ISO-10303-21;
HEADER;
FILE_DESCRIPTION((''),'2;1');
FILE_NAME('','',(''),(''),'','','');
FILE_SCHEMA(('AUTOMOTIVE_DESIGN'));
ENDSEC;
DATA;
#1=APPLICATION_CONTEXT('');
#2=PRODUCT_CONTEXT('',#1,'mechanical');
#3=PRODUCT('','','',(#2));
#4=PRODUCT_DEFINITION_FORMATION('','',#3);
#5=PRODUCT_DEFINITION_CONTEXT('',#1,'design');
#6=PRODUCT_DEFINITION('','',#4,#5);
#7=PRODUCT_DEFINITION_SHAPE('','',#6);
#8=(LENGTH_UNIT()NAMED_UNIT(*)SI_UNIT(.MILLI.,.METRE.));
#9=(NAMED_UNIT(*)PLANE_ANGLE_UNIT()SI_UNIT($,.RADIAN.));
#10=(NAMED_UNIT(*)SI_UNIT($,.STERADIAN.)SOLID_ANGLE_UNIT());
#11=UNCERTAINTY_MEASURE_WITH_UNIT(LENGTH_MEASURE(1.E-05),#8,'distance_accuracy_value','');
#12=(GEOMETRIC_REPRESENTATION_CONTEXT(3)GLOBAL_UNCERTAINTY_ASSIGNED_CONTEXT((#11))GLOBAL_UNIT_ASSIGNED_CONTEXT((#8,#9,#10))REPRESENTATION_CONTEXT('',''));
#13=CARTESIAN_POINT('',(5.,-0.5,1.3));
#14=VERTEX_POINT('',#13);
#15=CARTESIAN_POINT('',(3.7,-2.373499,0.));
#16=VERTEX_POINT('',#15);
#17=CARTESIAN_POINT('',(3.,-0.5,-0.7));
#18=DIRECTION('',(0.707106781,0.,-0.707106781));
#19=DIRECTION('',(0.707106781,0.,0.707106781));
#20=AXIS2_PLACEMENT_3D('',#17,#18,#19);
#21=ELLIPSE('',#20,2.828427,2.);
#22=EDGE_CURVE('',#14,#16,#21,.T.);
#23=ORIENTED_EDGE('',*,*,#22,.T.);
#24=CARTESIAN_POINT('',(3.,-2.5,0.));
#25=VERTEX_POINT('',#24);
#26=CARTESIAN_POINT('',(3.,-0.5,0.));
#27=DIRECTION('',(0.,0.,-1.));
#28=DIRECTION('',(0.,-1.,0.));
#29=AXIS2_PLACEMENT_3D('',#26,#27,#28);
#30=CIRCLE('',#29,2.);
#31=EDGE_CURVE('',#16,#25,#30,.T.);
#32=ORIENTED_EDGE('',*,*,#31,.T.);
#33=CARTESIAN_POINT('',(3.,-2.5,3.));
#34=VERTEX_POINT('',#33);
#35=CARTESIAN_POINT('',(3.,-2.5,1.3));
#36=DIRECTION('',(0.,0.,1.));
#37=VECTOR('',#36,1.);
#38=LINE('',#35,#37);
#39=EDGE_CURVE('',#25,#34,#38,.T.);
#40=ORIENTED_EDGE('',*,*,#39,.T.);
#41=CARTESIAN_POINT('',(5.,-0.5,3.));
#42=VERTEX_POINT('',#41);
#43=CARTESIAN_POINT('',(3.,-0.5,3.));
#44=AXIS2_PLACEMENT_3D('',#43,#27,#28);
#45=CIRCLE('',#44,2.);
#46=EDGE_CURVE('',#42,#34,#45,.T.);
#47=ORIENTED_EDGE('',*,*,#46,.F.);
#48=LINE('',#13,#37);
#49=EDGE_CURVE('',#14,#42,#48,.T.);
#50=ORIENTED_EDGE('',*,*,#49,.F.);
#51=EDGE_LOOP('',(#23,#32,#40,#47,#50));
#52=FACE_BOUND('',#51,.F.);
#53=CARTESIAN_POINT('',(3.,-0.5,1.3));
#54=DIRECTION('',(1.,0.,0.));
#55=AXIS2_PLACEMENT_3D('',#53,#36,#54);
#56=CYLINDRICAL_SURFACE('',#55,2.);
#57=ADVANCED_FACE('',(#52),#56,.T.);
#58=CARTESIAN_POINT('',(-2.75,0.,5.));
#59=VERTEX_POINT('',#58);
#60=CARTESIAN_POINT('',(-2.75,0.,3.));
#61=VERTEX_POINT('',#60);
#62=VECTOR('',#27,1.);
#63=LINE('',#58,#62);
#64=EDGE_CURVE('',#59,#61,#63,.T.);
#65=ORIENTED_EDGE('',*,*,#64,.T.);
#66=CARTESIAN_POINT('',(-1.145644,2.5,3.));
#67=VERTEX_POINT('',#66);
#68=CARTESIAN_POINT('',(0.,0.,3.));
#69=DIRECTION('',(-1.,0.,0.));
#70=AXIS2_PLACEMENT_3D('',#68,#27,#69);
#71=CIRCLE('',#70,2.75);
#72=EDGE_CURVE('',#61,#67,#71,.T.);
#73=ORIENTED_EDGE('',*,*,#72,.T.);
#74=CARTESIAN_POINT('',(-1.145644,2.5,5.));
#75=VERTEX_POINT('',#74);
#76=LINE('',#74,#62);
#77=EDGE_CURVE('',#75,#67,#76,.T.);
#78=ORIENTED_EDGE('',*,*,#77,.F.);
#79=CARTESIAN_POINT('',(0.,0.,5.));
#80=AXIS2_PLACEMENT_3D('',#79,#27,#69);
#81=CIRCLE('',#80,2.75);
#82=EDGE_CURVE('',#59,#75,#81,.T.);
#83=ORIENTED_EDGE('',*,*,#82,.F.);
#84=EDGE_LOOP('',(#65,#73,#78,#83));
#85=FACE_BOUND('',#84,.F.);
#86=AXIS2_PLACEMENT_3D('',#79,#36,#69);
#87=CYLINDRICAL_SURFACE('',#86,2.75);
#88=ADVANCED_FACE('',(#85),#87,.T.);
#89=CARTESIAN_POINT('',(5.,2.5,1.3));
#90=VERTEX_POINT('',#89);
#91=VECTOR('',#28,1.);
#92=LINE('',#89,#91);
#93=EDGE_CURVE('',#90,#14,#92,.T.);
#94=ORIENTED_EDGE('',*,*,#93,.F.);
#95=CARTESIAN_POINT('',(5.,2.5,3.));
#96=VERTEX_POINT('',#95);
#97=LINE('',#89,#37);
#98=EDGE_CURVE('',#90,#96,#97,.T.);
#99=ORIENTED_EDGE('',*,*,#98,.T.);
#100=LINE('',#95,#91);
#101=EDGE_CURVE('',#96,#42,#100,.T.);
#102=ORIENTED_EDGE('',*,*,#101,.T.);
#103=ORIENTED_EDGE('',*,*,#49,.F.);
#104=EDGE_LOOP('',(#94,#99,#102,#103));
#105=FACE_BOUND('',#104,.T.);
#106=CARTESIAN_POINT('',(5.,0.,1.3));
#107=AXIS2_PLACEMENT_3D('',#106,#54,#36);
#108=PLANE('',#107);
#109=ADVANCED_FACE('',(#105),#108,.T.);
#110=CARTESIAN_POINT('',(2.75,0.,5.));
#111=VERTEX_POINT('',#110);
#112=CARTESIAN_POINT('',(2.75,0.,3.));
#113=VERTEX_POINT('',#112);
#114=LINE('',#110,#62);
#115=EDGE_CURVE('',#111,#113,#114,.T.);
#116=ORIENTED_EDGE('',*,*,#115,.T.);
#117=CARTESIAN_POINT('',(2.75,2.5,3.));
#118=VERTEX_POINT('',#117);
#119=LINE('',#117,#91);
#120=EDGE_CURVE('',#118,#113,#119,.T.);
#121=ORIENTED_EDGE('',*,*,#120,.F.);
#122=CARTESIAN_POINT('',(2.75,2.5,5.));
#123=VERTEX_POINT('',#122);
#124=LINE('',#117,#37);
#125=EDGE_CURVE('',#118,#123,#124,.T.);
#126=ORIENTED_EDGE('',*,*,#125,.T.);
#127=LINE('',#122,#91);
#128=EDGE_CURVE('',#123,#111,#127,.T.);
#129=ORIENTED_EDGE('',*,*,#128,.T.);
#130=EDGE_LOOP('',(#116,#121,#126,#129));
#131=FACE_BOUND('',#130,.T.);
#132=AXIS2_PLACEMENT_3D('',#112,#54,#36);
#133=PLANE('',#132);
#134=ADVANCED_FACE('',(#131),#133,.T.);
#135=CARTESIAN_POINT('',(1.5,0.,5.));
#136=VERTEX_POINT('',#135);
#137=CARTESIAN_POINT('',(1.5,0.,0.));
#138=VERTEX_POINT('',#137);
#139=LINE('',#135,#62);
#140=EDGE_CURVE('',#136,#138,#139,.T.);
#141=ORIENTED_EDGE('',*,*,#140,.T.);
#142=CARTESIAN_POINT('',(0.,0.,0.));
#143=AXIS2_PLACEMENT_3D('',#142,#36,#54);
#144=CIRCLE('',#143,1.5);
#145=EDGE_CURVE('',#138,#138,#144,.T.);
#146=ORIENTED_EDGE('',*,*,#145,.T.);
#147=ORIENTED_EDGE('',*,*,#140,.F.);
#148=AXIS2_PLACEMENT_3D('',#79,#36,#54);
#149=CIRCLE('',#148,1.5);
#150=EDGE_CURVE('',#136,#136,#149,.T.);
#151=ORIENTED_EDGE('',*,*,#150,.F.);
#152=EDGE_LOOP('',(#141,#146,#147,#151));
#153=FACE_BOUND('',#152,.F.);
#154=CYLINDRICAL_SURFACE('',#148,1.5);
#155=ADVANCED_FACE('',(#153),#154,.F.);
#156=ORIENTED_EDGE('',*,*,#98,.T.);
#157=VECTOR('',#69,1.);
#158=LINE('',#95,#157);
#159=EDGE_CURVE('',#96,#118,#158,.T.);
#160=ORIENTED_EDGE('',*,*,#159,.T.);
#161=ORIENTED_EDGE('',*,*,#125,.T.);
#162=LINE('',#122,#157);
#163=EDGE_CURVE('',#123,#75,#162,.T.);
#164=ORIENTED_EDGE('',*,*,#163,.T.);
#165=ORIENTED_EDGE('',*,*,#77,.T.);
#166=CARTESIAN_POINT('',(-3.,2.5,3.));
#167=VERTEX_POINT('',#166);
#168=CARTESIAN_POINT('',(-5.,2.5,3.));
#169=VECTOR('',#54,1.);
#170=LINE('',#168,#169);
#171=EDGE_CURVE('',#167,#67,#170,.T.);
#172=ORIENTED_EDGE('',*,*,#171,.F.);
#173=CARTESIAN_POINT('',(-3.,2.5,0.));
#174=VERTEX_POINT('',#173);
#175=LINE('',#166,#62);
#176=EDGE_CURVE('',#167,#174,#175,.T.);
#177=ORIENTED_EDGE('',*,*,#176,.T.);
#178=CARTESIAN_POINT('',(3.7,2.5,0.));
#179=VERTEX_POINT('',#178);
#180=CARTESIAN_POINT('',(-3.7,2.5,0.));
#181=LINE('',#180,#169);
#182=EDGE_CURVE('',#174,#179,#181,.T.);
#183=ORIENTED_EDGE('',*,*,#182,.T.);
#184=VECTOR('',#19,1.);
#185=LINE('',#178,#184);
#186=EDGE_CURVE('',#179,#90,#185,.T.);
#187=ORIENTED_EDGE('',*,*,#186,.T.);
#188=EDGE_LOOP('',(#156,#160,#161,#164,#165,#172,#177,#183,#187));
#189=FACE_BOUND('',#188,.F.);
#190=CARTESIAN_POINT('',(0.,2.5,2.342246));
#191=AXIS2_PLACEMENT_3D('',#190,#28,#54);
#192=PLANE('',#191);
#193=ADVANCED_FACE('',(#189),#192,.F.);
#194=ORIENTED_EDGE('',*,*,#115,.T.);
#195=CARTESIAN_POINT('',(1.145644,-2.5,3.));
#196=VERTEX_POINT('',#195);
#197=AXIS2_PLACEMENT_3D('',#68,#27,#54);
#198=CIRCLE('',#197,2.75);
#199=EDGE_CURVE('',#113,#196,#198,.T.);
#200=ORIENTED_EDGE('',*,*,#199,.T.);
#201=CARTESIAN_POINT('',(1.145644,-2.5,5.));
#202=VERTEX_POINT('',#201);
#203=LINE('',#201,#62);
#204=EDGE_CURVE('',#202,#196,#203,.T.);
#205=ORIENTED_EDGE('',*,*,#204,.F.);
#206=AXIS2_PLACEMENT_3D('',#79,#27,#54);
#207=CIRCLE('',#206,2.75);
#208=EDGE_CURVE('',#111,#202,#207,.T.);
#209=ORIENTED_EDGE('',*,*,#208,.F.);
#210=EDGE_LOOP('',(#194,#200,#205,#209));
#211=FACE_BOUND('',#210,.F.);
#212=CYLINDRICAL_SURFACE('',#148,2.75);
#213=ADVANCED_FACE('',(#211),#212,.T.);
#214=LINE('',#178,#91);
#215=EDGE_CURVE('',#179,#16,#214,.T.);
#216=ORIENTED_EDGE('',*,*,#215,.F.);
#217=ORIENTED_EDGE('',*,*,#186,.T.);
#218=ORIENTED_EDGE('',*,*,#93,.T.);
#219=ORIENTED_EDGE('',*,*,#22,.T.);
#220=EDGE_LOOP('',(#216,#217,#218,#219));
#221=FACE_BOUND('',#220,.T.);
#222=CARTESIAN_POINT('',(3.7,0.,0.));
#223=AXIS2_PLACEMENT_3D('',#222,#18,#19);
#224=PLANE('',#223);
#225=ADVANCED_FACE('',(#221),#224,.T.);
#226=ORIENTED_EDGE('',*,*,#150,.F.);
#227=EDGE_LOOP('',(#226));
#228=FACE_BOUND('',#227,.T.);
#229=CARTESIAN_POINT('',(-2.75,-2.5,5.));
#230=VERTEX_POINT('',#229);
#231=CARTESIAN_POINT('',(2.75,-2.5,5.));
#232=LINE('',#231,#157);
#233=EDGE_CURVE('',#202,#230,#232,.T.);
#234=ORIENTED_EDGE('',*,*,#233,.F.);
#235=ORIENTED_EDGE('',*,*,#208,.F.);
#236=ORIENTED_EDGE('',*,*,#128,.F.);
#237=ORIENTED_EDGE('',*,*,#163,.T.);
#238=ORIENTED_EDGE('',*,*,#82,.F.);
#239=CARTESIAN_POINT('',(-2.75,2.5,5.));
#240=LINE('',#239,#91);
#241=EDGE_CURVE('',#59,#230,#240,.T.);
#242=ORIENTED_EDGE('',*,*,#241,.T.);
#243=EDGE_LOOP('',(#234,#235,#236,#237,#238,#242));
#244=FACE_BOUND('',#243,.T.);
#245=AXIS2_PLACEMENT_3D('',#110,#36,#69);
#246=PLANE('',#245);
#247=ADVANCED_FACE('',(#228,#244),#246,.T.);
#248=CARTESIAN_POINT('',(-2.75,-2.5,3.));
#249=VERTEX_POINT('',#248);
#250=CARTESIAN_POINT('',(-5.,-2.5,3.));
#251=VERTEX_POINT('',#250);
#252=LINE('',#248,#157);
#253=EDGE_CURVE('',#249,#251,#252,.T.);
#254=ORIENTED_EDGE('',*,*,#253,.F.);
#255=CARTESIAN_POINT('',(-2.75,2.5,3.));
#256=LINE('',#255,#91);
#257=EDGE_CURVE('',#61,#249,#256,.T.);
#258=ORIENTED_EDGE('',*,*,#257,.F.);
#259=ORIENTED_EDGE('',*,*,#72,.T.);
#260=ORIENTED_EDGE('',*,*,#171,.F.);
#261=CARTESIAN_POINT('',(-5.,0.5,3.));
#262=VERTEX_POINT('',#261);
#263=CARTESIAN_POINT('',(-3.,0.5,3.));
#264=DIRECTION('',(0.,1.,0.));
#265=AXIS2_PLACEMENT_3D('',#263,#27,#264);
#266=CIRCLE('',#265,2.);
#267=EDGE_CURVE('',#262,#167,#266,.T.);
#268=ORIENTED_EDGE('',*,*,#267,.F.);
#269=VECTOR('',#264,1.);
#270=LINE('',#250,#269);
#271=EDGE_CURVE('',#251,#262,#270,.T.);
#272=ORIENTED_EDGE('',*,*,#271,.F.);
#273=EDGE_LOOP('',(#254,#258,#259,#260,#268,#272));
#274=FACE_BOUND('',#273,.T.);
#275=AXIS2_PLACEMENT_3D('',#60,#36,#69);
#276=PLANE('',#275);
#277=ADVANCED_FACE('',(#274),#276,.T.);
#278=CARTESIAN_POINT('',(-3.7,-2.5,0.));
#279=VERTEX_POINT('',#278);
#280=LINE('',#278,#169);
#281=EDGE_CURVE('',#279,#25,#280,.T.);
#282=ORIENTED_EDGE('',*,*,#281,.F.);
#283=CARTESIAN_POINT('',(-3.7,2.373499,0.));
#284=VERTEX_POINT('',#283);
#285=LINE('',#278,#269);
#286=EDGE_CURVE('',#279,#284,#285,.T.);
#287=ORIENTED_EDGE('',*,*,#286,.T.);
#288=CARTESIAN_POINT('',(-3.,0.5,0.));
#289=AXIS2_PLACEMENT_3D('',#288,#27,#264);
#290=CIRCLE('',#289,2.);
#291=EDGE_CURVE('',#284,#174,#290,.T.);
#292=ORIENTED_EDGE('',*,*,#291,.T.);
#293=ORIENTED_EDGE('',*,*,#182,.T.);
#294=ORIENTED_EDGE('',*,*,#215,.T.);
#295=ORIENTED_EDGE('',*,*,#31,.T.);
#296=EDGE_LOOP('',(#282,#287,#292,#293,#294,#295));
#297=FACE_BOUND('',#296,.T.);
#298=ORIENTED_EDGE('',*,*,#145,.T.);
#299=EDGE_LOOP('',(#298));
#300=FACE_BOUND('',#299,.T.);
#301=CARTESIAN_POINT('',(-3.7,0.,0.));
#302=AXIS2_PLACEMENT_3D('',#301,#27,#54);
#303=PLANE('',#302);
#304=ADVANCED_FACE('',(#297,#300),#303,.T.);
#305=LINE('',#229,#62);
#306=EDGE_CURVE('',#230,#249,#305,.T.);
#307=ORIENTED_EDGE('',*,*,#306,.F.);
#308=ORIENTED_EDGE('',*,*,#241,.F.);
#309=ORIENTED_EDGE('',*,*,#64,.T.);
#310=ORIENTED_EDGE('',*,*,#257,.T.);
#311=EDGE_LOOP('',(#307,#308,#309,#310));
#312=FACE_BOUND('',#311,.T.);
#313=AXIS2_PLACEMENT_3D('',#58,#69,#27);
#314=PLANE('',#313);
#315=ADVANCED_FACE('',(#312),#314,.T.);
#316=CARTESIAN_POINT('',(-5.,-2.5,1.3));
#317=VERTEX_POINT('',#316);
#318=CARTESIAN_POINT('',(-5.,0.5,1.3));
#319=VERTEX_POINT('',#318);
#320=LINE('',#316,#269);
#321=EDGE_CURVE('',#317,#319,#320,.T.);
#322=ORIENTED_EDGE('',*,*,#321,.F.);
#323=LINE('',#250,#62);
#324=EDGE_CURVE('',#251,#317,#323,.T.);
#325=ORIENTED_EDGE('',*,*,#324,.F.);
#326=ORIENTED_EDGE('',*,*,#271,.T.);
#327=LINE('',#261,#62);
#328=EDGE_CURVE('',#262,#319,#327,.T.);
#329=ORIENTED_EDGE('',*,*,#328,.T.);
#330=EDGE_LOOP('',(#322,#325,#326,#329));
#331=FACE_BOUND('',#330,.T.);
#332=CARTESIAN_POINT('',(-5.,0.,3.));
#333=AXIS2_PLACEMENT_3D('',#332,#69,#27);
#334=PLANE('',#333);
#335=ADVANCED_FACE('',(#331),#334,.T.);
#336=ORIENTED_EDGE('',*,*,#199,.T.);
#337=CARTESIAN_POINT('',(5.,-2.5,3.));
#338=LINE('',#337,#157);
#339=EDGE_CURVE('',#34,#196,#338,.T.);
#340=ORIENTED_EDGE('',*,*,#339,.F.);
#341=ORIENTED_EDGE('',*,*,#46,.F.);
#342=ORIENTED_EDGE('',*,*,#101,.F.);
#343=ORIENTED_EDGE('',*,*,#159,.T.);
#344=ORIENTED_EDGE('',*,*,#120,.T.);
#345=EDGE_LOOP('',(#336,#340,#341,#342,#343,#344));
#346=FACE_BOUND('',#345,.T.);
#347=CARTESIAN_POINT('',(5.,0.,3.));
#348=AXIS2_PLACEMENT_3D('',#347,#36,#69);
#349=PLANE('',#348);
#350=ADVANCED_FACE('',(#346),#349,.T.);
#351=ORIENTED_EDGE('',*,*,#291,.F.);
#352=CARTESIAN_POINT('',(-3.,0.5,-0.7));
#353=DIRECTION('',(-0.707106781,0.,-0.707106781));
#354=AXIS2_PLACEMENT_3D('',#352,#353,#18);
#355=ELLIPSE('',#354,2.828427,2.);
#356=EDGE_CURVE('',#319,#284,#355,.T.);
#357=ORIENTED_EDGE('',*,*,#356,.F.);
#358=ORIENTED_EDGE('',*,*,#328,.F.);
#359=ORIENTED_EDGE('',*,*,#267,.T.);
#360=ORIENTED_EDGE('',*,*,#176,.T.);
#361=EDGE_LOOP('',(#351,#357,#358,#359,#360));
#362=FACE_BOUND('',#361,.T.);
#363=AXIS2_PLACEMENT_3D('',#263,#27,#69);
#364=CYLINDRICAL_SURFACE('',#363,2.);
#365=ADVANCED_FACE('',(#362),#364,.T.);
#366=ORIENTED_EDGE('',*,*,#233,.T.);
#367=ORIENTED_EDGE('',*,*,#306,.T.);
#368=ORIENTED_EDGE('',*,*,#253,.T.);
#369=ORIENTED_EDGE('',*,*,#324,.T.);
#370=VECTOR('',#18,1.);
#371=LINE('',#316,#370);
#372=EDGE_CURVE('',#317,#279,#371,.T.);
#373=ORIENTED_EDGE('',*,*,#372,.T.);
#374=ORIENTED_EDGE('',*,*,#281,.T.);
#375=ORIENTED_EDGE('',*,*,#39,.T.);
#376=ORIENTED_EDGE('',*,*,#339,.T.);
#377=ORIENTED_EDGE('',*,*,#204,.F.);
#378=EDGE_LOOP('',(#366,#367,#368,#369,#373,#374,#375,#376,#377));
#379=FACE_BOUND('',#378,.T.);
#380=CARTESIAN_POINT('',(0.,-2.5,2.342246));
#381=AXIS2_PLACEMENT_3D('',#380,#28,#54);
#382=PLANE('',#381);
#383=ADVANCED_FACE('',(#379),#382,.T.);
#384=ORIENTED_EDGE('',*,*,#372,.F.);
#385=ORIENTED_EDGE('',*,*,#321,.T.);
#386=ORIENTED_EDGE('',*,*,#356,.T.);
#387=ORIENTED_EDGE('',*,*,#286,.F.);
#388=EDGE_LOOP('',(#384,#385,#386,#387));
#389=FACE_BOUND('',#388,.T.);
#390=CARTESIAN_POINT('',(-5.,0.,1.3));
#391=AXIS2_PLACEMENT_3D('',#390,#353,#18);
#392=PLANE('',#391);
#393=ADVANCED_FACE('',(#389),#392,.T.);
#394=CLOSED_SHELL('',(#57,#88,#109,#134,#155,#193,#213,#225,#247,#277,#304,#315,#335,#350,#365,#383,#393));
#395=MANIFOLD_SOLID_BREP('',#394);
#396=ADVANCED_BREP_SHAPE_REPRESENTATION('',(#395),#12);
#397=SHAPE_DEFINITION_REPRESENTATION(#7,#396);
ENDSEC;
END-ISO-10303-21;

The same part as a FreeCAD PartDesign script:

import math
import FreeCAD as App
import Part
import Sketcher
from FreeCAD import Vector
Q = App.Units.Quantity


def edges_at(feature, points):
    """Names of the edges that pass closest to the given points."""
    edges = feature.Shape.Edges
    near = lambda p: min(range(len(edges)), key=lambda i: edges[i].distToShape(Part.Vertex(*p))[0])
    return sorted({f"Edge{near(p) + 1}" for p in points})

doc = App.newDocument("Part")
body = doc.addObject("PartDesign::Body", "Body")

# Sketch on XZ plane
sketch1 = body.newObject("Sketcher::SketchObject", "Sketch")
sketch1.AttachmentSupport = (doc.getObject("XZ_Plane"), [""])
sketch1.MapMode = "FlatFace"
sketch1.addGeometry(Part.LineSegment(Vector(-3.7, 0, 0), Vector(3.7, 0, 0)), False)
sketch1.addGeometry(Part.LineSegment(Vector(3.7, 0, 0), Vector(5, 1.3, 0)), False)
sketch1.addGeometry(Part.LineSegment(Vector(5, 1.3, 0), Vector(5, 3, 0)), False)
sketch1.addGeometry(Part.LineSegment(Vector(5, 3, 0), Vector(2.8, 3, 0)), False)
sketch1.addGeometry(Part.LineSegment(Vector(2.8, 3, 0), Vector(2.8, 5, 0)), False)
sketch1.addGeometry(Part.LineSegment(Vector(2.8, 5, 0), Vector(-2.8, 5, 0)), False)
sketch1.addGeometry(Part.LineSegment(Vector(-2.8, 5, 0), Vector(-2.8, 3, 0)), False)
sketch1.addGeometry(Part.LineSegment(Vector(-2.8, 3, 0), Vector(-5, 3, 0)), False)
sketch1.addGeometry(Part.LineSegment(Vector(-5, 3, 0), Vector(-5, 1.3, 0)), False)
sketch1.addGeometry(Part.LineSegment(Vector(-5, 1.3, 0), Vector(-3.7, 0, 0)), False)
sketch1.addConstraint(Sketcher.Constraint("Coincident", 0, 2, 1, 1))
sketch1.addConstraint(Sketcher.Constraint("Coincident", 1, 2, 2, 1))
sketch1.addConstraint(Sketcher.Constraint("Coincident", 2, 2, 3, 1))
sketch1.addConstraint(Sketcher.Constraint("Coincident", 3, 2, 4, 1))
sketch1.addConstraint(Sketcher.Constraint("Coincident", 4, 2, 5, 1))
sketch1.addConstraint(Sketcher.Constraint("Coincident", 5, 2, 6, 1))
sketch1.addConstraint(Sketcher.Constraint("Coincident", 6, 2, 7, 1))
sketch1.addConstraint(Sketcher.Constraint("Coincident", 7, 2, 8, 1))
sketch1.addConstraint(Sketcher.Constraint("Coincident", 8, 2, 9, 1))
sketch1.addConstraint(Sketcher.Constraint("Coincident", 9, 2, 0, 1))
sketch1.addConstraint(Sketcher.Constraint("Horizontal", 0))
sketch1.addConstraint(Sketcher.Constraint("Vertical", 2))
sketch1.addConstraint(Sketcher.Constraint("Horizontal", 3))
sketch1.addConstraint(Sketcher.Constraint("Vertical", 4))
sketch1.addConstraint(Sketcher.Constraint("Horizontal", 5))
sketch1.addConstraint(Sketcher.Constraint("Vertical", 6))
sketch1.addConstraint(Sketcher.Constraint("Horizontal", 7))
sketch1.addConstraint(Sketcher.Constraint("Vertical", 8))
sketch1.addConstraint(Sketcher.Constraint("Symmetric", 0, 2, 9, 2, -1, 1))
sketch1.addConstraint(Sketcher.Constraint("Symmetric", 3, 2, 6, 2, -2))
sketch1.addConstraint(Sketcher.Constraint("Symmetric", 1, 2, 8, 2, -2))
sketch1.addConstraint(Sketcher.Constraint("Perpendicular", 1, 9))
sketch1.addConstraint(Sketcher.Constraint("DistanceY", 4, 1, 4, 2, Q("2 mm")))
sketch1.addConstraint(Sketcher.Constraint("DistanceX", 0, 1, 0, 2, Q("7.4 mm")))
sketch1.addConstraint(Sketcher.Constraint("DistanceX", 5, 2, 5, 1, Q("5.5 mm")))
sketch1.addConstraint(Sketcher.Constraint("DistanceY", 2, 1, 2, 2, Q("1.7 mm")))
sketch1.addConstraint(Sketcher.Constraint("DistanceX", -1, 1, 1, 2, Q("5 mm")))
pad1 = body.newObject("PartDesign::Pad", "Pad")
pad1.Profile = sketch1
pad1.Type = "TwoLengths"
pad1.Length = 2.5
pad1.Length2 = 2.5

# Sketch on XY plane
sketch2 = body.newObject("Sketcher::SketchObject", "Sketch001")
sketch2.AttachmentSupport = (doc.getObject("XY_Plane"), [""])
sketch2.MapMode = "FlatFace"
sketch2.AttachmentOffset = App.Placement(Vector(0, 0, 5), App.Rotation())
sketch2.addGeometry(Part.Circle(Vector(0, 0, 0), Vector(0, 0, 1), 1.5), False)
sketch2.addConstraint(Sketcher.Constraint("Coincident", 0, 3, -1, 1))
sketch2.addConstraint(Sketcher.Constraint("Diameter", 0, Q("3 mm")))
pocket1 = body.newObject("PartDesign::Pocket", "Pocket")
pocket1.Profile = sketch2
pocket1.Type = "ThroughAll"

# Sketch on XY plane
sketch3 = body.newObject("Sketcher::SketchObject", "Sketch002")
sketch3.AttachmentSupport = (doc.getObject("XY_Plane"), [""])
sketch3.MapMode = "FlatFace"
sketch3.AttachmentOffset = App.Placement(Vector(0, 0, 5), App.Rotation())
sketch3.addGeometry(Part.LineSegment(Vector(2.8, -2.5, 0), Vector(2.8, 0, 0)), False)
sketch3.addGeometry(Part.ArcOfCircle(Part.Circle(Vector(0, 0, 0), Vector(0, 0, 1), 2.8), math.radians(-65), math.radians(0)), False)
sketch3.addGeometry(Part.LineSegment(Vector(1.1, -2.5, 0), Vector(2.8, -2.5, 0)), False)
sketch3.addGeometry(Part.ArcOfCircle(Part.Circle(Vector(0, 0, 0), Vector(0, 0, 1), 2.8), math.radians(115), math.radians(180)), False)
sketch3.addGeometry(Part.LineSegment(Vector(-1.1, 2.5, 0), Vector(-2.8, 2.5, 0)), False)
sketch3.addGeometry(Part.LineSegment(Vector(-2.8, 2.5, 0), Vector(-2.8, 0, 0)), False)
sketch3.addConstraint(Sketcher.Constraint("Tangent", 0, 2, 1, 2))
sketch3.addConstraint(Sketcher.Constraint("Coincident", 1, 1, 2, 1))
sketch3.addConstraint(Sketcher.Constraint("Coincident", 2, 2, 0, 1))
sketch3.addConstraint(Sketcher.Constraint("Coincident", 3, 1, 4, 1))
sketch3.addConstraint(Sketcher.Constraint("Coincident", 4, 2, 5, 1))
sketch3.addConstraint(Sketcher.Constraint("Tangent", 5, 2, 3, 2))
sketch3.addConstraint(Sketcher.Constraint("Vertical", 0))
sketch3.addConstraint(Sketcher.Constraint("Horizontal", 2))
sketch3.addConstraint(Sketcher.Constraint("Horizontal", 4))
sketch3.addConstraint(Sketcher.Constraint("Vertical", 5))
sketch3.addConstraint(Sketcher.Constraint("Coincident", 1, 3, -1, 1))
sketch3.addConstraint(Sketcher.Constraint("Coincident", 3, 3, -1, 1))
sketch3.addConstraint(Sketcher.Constraint("Equal", 1, 3))
sketch3.addConstraint(Sketcher.Constraint("Equal", 2, 4))
sketch3.addConstraint(Sketcher.Constraint("Radius", 1, Q("2.75 mm")))
sketch3.addConstraint(Sketcher.Constraint("DistanceY", 0, 1, 0, 2, Q("2.5 mm")))
pocket2 = body.newObject("PartDesign::Pocket", "Pocket001")
pocket2.Profile = sketch3
pocket2.Length = 2
doc.recompute()

fillet = body.newObject("PartDesign::Fillet", "Fillet")
fillet.Base = (pocket2, edges_at(pocket2, [(5, -2.5, 2.15), (-5, 2.5, 2.15)]))
fillet.Radius = 2

doc.recompute()
